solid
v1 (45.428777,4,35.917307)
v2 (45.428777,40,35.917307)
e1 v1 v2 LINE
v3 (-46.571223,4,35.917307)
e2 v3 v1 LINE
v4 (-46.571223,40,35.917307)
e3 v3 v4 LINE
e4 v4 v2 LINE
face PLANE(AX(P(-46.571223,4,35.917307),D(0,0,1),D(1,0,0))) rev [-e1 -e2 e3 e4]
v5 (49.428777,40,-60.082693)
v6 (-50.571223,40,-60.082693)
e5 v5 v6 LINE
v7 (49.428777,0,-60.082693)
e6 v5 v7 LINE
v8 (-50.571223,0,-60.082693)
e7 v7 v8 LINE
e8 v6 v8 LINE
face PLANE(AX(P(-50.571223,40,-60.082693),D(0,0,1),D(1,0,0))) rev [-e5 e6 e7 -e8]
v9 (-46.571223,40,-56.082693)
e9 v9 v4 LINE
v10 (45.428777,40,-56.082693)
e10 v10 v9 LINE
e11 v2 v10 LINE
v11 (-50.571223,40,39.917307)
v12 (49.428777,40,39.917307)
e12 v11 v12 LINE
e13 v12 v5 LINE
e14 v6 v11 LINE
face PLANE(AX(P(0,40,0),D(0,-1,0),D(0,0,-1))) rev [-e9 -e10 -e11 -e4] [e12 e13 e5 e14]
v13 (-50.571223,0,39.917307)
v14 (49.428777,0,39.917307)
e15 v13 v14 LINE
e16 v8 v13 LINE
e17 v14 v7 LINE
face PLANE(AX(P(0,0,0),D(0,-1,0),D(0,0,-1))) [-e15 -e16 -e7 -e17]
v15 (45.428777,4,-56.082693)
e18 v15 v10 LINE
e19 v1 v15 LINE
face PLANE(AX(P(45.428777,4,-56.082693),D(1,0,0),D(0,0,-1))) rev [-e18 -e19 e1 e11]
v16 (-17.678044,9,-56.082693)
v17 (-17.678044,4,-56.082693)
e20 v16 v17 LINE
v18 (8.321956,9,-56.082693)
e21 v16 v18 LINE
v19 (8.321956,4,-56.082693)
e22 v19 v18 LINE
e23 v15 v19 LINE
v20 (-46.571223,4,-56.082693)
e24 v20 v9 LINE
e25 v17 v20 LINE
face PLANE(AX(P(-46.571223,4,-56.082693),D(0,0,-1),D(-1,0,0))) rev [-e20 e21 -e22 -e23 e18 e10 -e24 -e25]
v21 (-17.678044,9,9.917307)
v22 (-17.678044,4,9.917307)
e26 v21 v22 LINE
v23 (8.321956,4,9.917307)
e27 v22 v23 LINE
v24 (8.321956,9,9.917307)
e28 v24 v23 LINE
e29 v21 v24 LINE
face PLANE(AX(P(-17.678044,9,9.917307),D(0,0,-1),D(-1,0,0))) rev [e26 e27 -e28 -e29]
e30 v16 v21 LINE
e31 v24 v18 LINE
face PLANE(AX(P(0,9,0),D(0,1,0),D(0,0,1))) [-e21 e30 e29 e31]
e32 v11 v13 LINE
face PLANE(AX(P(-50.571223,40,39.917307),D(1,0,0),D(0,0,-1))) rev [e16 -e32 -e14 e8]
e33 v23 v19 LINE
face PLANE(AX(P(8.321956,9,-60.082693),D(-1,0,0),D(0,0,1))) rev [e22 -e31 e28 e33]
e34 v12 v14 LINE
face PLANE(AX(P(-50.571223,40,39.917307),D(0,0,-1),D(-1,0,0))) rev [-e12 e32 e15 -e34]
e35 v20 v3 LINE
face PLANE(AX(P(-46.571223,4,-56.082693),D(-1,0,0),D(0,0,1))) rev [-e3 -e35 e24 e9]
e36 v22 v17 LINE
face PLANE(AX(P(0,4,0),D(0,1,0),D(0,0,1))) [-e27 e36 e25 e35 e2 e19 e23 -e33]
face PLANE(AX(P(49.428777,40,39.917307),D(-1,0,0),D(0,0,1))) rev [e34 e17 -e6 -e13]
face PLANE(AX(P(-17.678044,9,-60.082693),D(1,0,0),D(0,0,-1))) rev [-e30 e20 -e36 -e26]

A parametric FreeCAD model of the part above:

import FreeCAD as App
import Part
import Sketcher
from FreeCAD import Vector
Q = App.Units.Quantity

doc = App.newDocument("Part")
body = doc.addObject("PartDesign::Body", "Body")

# Sketch on XZ plane
sketch1 = body.newObject("Sketcher::SketchObject", "Sketch")
sketch1.AttachmentSupport = (doc.getObject("XZ_Plane"), [""])
sketch1.MapMode = "FlatFace"
sketch1.addGeometry([
    Part.LineSegment(Vector(-51, -60, 0), Vector(-51, 40, 0)),
    Part.LineSegment(Vector(-51, 40, 0), Vector(49, 40, 0)),
    Part.LineSegment(Vector(49, 40, 0), Vector(49, -60, 0)),
    Part.LineSegment(Vector(49, -60, 0), Vector(-51, -60, 0)),
], False)
sketch1.addConstraint([
    Sketcher.Constraint("Coincident", 0, 2, 1, 1),
    Sketcher.Constraint("Coincident", 1, 2, 2, 1),
    Sketcher.Constraint("Coincident", 2, 2, 3, 1),
    Sketcher.Constraint("Coincident", 3, 2, 0, 1),
    Sketcher.Constraint("Vertical", 0),
    Sketcher.Constraint("Horizontal", 1),
    Sketcher.Constraint("Vertical", 2),
    Sketcher.Constraint("Horizontal", 3),
    Sketcher.Constraint("Equal", 3, 0),
    Sketcher.Constraint("DistanceX", 1, 1, 1, 2, Q("100 mm")),
    Sketcher.Constraint("DistanceX", 0, 2, -1, 1, Q("50.571223 mm")),
    Sketcher.Constraint("DistanceY", -1, 1, 0, 2, Q("39.917307 mm")),
])
pad1 = body.newObject("PartDesign::Pad", "Pad")
pad1.Profile = sketch1
pad1.Length = 40
pad1.Reversed = True

# Sketch on XZ plane
sketch2 = body.newObject("Sketcher::SketchObject", "Sketch001")
sketch2.AttachmentSupport = (doc.getObject("XZ_Plane"), [""])
sketch2.MapMode = "FlatFace"
sketch2.AttachmentOffset = App.Placement(Vector(0, 0, -40), App.Rotation())
sketch2.addGeometry([
    Part.LineSegment(Vector(-47, -56, 0), Vector(-47, 36, 0)),
    Part.LineSegment(Vector(-47, 36, 0), Vector(45, 36, 0)),
    Part.LineSegment(Vector(45, 36, 0), Vector(45, -56, 0)),
    Part.LineSegment(Vector(45, -56, 0), Vector(-47, -56, 0)),
], False)
sketch2.addConstraint([
    Sketcher.Constraint("Coincident", 0, 2, 1, 1),
    Sketcher.Constraint("Coincident", 1, 2, 2, 1),
    Sketcher.Constraint("Coincident", 2, 2, 3, 1),
    Sketcher.Constraint("Coincident", 3, 2, 0, 1),
    Sketcher.Constraint("Vertical", 0),
    Sketcher.Constraint("Horizontal", 1),
    Sketcher.Constraint("Vertical", 2),
    Sketcher.Constraint("Horizontal", 3),
    Sketcher.Constraint("Equal", 3, 0),
    Sketcher.Constraint("DistanceX", 1, 1, 1, 2, Q("92 mm")),
    Sketcher.Constraint("DistanceX", 0, 2, -1, 1, Q("46.571223 mm")),
    Sketcher.Constraint("DistanceY", -1, 1, 0, 2, Q("35.917307 mm")),
])
pocket1 = body.newObject("PartDesign::Pocket", "Pocket")
pocket1.Profile = sketch2
pocket1.Length = 36
pocket1.Reversed = True

# Sketch on XZ plane
sketch3 = body.newObject("Sketcher::SketchObject", "Sketch002")
sketch3.AttachmentSupport = (doc.getObject("XZ_Plane"), [""])
sketch3.MapMode = "FlatFace"
sketch3.AttachmentOffset = App.Placement(Vector(0, 0, -4), App.Rotation())
sketch3.addGeometry([
    Part.LineSegment(Vector(-18, -60, 0), Vector(-18, 10, 0)),
    Part.LineSegment(Vector(-18, 10, 0), Vector(8, 10, 0)),
    Part.LineSegment(Vector(8, 10, 0), Vector(8, -60, 0)),
    Part.LineSegment(Vector(8, -60, 0), Vector(-18, -60, 0)),
], False)
sketch3.addConstraint([
    Sketcher.Constraint("Coincident", 0, 2, 1, 1),
    Sketcher.Constraint("Coincident", 1, 2, 2, 1),
    Sketcher.Constraint("Coincident", 2, 2, 3, 1),
    Sketcher.Constraint("Coincident", 3, 2, 0, 1),
    Sketcher.Constraint("Vertical", 0),
    Sketcher.Constraint("Horizontal", 1),
    Sketcher.Constraint("Vertical", 2),
    Sketcher.Constraint("Horizontal", 3),
    Sketcher.Constraint("DistanceX", 1, 1, 1, 2, Q("26 mm")),
    Sketcher.Constraint("DistanceY", 0, 1, 0, 2, Q("70 mm")),
    Sketcher.Constraint("DistanceX", 0, 2, -1, 1, Q("17.678044 mm")),
    Sketcher.Constraint("DistanceY", -1, 1, 0, 2, Q("9.917307 mm")),
])
pad2 = body.newObject("PartDesign::Pad", "Pad001")
pad2.Profile = sketch3
pad2.Length = 5
pad2.Reversed = True

doc.recompute()
